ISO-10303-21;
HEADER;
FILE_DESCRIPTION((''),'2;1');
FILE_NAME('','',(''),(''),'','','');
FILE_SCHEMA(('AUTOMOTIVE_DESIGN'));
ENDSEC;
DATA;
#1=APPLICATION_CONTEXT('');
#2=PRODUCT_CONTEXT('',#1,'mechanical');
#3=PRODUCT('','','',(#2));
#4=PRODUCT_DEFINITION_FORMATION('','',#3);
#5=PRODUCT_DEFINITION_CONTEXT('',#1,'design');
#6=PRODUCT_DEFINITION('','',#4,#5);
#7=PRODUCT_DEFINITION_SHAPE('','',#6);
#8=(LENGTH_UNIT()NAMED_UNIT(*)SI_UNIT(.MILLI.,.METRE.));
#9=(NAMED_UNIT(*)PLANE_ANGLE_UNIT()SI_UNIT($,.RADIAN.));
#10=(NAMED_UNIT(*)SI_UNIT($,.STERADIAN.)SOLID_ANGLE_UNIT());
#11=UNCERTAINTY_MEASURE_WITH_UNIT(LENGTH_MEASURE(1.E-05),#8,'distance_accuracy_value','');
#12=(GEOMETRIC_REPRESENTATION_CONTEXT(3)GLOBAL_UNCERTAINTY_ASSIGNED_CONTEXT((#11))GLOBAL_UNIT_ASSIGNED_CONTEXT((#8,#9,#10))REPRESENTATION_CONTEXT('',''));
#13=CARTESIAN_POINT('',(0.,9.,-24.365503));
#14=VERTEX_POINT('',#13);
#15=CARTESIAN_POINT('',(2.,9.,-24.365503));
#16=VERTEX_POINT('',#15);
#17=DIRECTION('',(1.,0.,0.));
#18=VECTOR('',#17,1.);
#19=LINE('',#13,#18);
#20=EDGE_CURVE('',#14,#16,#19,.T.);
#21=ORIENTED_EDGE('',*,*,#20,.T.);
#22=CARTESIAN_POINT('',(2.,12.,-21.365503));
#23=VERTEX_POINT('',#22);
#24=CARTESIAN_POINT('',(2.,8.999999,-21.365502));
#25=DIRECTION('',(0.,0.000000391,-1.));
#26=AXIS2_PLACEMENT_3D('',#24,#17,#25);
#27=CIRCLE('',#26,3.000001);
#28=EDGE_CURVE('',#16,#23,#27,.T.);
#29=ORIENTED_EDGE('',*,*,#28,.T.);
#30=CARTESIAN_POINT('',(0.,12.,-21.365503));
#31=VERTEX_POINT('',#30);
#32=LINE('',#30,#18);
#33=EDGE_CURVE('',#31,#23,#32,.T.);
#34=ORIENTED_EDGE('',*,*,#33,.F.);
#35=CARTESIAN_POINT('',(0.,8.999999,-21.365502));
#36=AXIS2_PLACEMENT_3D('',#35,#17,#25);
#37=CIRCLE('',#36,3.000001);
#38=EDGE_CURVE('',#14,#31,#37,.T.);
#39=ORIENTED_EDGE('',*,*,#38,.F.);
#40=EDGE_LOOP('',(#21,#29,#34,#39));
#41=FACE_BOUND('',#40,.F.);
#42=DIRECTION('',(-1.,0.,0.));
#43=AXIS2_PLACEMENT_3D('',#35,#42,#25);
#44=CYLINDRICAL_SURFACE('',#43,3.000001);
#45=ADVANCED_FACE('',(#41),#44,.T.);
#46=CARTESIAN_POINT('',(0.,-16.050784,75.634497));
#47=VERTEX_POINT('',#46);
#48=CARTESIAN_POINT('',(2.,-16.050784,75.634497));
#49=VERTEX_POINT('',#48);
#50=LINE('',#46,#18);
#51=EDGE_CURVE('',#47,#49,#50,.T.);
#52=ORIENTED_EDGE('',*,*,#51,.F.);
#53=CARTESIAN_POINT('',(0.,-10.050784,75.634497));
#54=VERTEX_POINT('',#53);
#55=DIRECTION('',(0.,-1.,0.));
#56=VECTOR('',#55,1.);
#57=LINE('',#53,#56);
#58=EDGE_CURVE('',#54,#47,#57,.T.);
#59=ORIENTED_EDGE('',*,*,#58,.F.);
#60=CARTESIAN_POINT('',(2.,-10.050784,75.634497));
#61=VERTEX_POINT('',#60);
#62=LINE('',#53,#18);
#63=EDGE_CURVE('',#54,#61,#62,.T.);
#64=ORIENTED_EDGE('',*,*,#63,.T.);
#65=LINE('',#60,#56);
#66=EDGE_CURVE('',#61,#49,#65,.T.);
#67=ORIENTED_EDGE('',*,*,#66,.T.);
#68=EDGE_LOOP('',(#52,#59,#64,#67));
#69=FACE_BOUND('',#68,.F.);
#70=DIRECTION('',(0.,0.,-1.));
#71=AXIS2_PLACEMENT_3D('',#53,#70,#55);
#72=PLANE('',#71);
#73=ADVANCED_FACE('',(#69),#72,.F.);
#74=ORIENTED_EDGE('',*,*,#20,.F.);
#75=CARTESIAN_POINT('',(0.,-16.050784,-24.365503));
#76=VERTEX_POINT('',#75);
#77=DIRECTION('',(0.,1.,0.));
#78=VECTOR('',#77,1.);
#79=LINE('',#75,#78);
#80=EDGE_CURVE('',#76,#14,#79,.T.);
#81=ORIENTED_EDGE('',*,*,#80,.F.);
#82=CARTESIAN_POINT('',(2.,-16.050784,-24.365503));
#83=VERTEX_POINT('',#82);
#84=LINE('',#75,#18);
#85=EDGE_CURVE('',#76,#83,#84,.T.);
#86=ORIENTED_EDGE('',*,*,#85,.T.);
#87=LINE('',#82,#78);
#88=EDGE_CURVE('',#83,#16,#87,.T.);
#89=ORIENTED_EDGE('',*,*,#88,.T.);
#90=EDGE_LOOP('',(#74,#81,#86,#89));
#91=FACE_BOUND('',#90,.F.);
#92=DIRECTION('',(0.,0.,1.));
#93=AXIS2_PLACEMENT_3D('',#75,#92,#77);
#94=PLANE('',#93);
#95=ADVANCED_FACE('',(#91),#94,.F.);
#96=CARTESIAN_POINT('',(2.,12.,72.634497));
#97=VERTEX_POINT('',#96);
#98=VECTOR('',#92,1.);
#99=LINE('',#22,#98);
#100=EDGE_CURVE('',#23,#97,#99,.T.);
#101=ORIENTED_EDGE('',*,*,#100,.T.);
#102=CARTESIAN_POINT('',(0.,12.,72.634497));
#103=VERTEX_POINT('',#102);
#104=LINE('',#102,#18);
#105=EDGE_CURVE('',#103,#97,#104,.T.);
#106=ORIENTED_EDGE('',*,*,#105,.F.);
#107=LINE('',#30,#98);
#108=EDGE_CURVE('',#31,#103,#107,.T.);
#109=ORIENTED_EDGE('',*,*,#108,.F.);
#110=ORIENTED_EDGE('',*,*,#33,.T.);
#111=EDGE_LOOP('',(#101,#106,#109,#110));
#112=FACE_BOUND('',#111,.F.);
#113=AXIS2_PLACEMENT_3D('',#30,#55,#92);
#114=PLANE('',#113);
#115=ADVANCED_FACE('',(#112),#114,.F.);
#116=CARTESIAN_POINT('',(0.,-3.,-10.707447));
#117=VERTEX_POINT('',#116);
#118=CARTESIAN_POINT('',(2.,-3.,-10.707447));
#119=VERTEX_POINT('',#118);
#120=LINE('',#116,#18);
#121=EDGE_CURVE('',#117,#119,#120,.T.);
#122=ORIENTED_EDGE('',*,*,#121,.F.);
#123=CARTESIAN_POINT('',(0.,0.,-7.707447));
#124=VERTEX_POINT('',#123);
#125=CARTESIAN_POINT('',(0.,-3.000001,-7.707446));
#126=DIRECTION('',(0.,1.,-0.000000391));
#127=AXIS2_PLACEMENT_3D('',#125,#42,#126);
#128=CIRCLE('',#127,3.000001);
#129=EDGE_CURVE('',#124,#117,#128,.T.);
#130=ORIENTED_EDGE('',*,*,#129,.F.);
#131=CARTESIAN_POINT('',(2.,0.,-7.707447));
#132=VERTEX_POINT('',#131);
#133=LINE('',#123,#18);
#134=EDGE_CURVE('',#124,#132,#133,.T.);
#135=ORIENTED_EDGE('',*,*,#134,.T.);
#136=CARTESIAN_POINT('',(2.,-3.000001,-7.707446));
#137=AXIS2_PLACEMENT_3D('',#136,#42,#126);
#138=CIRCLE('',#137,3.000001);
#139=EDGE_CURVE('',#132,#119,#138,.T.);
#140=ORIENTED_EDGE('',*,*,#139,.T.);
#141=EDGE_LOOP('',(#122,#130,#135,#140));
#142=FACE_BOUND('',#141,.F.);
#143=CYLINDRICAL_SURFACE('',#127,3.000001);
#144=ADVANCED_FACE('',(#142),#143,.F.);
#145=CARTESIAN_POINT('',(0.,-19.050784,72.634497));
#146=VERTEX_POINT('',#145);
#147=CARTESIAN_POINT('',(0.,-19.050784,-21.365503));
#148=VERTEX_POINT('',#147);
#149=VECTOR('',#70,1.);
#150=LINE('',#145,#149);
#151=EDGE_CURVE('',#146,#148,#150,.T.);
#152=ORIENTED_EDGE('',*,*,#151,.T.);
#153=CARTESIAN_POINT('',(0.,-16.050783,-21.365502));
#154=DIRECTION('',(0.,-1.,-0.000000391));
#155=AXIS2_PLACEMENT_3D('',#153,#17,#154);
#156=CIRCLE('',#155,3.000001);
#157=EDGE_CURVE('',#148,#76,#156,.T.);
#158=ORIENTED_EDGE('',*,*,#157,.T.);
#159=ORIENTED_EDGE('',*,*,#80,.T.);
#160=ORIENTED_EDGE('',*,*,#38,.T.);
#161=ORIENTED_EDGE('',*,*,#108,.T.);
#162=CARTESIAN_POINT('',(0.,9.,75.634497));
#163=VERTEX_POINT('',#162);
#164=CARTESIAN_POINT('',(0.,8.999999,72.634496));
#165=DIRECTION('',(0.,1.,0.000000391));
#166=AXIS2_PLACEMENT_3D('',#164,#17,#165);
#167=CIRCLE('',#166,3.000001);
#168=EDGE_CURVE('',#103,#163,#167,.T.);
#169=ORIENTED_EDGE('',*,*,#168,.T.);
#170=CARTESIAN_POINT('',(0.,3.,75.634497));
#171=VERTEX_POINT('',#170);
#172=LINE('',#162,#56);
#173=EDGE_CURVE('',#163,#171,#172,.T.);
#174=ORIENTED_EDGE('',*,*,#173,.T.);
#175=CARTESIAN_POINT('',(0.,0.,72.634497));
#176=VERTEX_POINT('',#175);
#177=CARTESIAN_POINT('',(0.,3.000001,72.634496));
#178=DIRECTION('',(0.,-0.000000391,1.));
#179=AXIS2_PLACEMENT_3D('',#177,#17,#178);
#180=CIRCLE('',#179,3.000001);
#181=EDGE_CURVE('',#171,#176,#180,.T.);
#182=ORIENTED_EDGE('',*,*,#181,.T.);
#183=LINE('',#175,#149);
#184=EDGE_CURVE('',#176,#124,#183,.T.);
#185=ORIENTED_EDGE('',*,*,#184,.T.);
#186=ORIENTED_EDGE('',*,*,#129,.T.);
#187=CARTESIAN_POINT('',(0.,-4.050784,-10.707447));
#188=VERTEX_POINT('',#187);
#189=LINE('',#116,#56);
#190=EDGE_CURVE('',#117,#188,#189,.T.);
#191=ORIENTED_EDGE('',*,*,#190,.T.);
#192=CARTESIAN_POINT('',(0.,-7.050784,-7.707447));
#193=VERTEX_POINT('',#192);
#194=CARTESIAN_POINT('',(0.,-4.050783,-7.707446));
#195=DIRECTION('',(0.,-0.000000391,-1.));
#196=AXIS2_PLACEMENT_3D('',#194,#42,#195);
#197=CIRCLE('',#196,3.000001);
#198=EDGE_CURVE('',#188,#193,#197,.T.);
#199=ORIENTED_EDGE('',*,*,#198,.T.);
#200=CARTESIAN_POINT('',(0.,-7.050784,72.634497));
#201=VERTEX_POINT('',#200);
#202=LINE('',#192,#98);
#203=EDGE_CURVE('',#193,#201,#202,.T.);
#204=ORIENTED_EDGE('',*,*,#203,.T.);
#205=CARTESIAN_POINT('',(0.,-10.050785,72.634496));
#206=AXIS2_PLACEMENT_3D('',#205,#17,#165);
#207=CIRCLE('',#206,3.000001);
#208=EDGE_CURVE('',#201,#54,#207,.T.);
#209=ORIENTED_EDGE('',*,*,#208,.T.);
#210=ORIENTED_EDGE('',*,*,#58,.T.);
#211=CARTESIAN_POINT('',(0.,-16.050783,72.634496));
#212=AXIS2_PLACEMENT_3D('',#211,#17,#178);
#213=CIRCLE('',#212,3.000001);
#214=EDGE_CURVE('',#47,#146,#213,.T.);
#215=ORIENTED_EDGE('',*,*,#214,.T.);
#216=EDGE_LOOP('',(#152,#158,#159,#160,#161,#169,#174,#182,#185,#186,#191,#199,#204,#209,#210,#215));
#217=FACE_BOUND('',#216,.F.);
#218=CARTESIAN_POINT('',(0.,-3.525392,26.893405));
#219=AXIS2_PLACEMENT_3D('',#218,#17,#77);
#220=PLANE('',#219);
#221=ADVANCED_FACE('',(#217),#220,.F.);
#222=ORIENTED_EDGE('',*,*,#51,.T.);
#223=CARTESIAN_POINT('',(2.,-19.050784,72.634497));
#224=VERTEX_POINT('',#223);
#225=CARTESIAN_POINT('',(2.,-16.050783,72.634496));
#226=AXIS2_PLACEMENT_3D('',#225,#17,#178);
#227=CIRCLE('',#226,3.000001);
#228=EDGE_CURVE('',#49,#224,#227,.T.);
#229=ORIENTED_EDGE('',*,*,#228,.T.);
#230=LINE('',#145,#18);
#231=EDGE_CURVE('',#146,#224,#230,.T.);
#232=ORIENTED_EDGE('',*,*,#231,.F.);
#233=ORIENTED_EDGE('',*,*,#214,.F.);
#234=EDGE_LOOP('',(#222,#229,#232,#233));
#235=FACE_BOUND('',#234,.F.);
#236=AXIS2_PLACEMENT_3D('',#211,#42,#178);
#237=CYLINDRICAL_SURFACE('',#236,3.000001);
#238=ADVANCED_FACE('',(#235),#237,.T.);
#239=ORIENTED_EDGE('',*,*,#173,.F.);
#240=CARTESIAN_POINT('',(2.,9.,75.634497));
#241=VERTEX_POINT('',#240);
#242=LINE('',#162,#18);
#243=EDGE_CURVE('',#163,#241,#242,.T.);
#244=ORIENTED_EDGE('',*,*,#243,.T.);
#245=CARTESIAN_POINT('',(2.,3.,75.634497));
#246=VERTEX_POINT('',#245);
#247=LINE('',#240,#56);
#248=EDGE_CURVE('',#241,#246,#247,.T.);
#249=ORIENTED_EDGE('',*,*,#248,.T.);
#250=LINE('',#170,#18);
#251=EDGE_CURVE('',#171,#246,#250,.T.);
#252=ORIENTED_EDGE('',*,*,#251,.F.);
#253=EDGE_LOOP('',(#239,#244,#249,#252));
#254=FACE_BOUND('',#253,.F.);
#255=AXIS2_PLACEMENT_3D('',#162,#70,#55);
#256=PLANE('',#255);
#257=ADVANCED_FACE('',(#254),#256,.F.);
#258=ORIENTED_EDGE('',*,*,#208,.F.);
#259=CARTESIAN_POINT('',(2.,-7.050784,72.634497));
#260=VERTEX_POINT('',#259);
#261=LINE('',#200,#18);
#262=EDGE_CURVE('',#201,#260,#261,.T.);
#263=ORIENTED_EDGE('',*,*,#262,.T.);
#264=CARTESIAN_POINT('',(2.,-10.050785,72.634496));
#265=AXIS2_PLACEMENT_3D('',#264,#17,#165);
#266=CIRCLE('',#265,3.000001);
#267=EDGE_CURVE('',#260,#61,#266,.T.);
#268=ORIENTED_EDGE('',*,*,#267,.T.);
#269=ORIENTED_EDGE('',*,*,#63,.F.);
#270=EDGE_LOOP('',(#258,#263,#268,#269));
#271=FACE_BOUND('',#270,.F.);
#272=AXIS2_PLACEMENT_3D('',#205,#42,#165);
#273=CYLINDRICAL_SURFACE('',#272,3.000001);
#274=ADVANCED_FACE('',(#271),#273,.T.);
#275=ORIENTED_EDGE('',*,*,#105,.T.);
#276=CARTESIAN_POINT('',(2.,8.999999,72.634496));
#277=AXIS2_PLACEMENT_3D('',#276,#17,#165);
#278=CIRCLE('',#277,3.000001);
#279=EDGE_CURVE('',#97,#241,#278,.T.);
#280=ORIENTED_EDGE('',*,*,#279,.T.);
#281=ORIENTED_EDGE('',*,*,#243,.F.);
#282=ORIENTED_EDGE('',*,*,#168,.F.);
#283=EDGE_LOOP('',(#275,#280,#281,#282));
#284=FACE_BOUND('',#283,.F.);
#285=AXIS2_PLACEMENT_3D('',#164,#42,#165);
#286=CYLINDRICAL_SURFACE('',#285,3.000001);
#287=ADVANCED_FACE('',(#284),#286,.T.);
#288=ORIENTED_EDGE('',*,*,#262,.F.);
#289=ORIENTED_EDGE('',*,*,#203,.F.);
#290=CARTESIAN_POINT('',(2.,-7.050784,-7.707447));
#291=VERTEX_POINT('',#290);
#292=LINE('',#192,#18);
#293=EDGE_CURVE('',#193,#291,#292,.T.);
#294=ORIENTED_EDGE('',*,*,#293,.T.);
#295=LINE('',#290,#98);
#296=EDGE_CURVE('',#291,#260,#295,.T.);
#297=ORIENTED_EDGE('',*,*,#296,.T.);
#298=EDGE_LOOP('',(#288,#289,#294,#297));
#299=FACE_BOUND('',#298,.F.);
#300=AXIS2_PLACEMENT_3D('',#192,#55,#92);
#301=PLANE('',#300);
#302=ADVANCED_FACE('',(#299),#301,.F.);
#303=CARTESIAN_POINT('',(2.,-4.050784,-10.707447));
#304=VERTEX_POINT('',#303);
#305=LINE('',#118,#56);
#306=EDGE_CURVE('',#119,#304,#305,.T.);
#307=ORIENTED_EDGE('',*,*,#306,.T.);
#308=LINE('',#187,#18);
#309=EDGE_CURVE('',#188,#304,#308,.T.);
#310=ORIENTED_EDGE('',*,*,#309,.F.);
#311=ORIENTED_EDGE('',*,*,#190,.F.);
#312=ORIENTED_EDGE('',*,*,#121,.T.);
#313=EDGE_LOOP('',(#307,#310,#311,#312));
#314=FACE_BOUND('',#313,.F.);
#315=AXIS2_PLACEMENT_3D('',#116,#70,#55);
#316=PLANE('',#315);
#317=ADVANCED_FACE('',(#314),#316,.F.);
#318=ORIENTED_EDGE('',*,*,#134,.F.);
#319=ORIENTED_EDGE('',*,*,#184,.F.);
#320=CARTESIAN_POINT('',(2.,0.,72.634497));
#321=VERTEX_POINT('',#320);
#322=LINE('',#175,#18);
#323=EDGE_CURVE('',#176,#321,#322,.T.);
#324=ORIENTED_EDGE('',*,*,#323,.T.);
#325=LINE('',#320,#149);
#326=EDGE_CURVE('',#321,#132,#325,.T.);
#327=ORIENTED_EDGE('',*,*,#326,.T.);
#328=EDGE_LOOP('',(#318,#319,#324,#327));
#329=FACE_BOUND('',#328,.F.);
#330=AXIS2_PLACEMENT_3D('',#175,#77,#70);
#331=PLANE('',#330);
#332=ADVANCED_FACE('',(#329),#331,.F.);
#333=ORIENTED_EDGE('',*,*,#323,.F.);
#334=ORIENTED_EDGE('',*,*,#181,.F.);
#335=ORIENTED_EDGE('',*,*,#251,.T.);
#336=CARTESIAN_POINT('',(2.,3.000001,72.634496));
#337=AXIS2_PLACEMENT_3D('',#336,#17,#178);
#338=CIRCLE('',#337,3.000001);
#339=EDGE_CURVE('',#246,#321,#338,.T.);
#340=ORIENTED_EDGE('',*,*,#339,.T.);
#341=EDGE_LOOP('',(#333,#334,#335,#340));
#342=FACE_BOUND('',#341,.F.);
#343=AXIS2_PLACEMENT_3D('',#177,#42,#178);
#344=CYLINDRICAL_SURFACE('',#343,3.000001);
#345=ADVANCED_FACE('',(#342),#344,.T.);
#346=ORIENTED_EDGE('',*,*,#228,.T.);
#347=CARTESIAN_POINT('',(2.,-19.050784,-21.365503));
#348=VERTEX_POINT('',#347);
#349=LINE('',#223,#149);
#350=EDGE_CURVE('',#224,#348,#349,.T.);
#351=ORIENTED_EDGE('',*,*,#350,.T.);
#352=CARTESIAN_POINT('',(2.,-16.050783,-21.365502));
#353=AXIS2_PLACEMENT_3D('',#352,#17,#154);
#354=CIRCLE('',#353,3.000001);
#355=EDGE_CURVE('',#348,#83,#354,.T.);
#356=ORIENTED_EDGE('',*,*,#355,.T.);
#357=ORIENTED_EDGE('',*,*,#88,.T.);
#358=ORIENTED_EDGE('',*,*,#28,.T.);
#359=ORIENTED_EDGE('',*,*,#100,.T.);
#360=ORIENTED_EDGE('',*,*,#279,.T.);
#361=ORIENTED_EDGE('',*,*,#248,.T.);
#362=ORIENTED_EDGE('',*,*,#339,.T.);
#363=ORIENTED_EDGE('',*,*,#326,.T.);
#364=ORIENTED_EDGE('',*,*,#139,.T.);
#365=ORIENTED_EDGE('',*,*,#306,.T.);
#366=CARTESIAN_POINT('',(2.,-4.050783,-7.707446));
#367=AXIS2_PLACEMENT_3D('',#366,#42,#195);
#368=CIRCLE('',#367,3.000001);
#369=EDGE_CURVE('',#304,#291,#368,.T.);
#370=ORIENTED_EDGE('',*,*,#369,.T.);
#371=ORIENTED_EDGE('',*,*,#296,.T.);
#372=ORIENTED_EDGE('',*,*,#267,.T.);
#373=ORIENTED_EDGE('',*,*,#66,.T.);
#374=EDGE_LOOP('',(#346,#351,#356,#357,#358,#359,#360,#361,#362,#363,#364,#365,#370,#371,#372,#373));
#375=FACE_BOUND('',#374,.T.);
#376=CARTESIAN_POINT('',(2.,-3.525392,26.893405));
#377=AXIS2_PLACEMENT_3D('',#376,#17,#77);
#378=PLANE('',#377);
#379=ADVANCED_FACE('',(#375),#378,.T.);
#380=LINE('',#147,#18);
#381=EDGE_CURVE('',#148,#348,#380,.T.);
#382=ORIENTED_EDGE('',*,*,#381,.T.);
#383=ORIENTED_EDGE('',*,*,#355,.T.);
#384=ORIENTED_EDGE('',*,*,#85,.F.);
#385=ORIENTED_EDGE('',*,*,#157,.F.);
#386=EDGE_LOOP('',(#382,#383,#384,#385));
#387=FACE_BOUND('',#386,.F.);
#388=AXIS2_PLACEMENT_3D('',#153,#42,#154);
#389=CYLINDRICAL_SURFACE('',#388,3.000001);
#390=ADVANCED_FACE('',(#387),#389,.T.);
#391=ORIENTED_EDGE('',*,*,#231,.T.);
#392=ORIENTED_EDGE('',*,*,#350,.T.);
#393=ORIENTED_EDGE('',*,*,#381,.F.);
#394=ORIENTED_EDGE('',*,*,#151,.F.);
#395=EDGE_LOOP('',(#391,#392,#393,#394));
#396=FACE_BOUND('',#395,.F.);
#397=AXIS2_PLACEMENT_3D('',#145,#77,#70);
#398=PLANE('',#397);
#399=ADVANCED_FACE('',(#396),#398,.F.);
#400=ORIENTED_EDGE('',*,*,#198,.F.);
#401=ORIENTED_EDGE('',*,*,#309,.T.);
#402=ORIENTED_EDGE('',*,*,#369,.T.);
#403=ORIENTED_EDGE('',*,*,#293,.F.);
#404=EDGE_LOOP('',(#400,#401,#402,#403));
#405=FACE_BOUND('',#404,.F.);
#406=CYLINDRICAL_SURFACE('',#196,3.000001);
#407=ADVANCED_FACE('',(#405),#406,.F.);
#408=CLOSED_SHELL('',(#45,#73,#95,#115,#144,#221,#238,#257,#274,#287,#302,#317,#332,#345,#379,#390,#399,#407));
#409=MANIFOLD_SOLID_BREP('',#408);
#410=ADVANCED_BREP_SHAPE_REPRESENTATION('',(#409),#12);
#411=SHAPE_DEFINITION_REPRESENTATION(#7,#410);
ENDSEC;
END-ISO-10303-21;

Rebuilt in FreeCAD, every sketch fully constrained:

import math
import FreeCAD as App
import Part
import Sketcher
from FreeCAD import Vector
Q = App.Units.Quantity

doc = App.newDocument("Part")
params = doc.addObject("Spreadsheet::Sheet", "Params")
for row, (alias, value) in enumerate([
    ("sketch1_radius", "3.000001 mm"),
    ("sketch1_width", "6 mm"),
    ("sketch1_height", "94 mm"),
    ("pad1_length", "2 mm"),
], start=1):
    params.set(f"A{row}", alias)
    params.set(f"B{row}", "=" + value)
    params.setAlias(f"B{row}", alias)

body = doc.addObject("PartDesign::Body", "Body")

# Sketch on YZ plane
sketch1 = doc.addObject("Sketcher::SketchObject", "Sketch")
body.addObject(sketch1)
sketch1.AttachmentSupport = (doc.YZ_Plane, [""])
sketch1.MapMode = "FlatFace"
sketch1.addGeometry(Part.ArcOfCircle(Part.Circle(Vector(-16.1, 72.6, 0), Vector(0, 0, 1), 3), math.radians(90), math.radians(180)), False)
sketch1.addGeometry(Part.LineSegment(Vector(-19.1, 72.6, 0), Vector(-19.1, -21.4, 0)), False)
sketch1.addGeometry(Part.ArcOfCircle(Part.Circle(Vector(-16.1, -21.4, 0), Vector(0, 0, 1), 3), math.radians(-180), math.radians(-90)), False)
sketch1.addGeometry(Part.LineSegment(Vector(-16.1, -24.4, 0), Vector(9, -24.4, 0)), False)
sketch1.addGeometry(Part.ArcOfCircle(Part.Circle(Vector(9, -21.4, 0), Vector(0, 0, 1), 3), math.radians(-90), math.radians(0)), False)
sketch1.addGeometry(Part.LineSegment(Vector(12, -21.4, 0), Vector(12, 72.6, 0)), False)
sketch1.addGeometry(Part.ArcOfCircle(Part.Circle(Vector(9, 72.6, 0), Vector(0, 0, 1), 3), math.radians(0), math.radians(90)), False)
sketch1.addGeometry(Part.LineSegment(Vector(9, 75.6, 0), Vector(3, 75.6, 0)), False)
sketch1.addGeometry(Part.ArcOfCircle(Part.Circle(Vector(3, 72.6, 0), Vector(0, 0, 1), 3), math.radians(90), math.radians(180)), False)
sketch1.addGeometry(Part.LineSegment(Vector(0, 72.6, 0), Vector(0, -7.7, 0)), False)
sketch1.addGeometry(Part.ArcOfCircle(Part.Circle(Vector(-3, -7.7, 0), Vector(0, 0, 1), 3), math.radians(-90), math.radians(0)), False)
sketch1.addGeometry(Part.LineSegment(Vector(-3, -10.7, 0), Vector(-4.1, -10.7, 0)), False)
sketch1.addGeometry(Part.ArcOfCircle(Part.Circle(Vector(-4.1, -7.7, 0), Vector(0, 0, 1), 3), math.radians(-180), math.radians(-90)), False)
sketch1.addGeometry(Part.LineSegment(Vector(-7.1, -7.7, 0), Vector(-7.1, 72.6, 0)), False)
sketch1.addGeometry(Part.ArcOfCircle(Part.Circle(Vector(-10.1, 72.6, 0), Vector(0, 0, 1), 3), math.radians(0), math.radians(90)), False)
sketch1.addGeometry(Part.LineSegment(Vector(-10.1, 75.6, 0), Vector(-16.1, 75.6, 0)), False)
sketch1.addConstraint(Sketcher.Constraint("Tangent", 0, 2, 1, 1))
sketch1.addConstraint(Sketcher.Constraint("Tangent", 1, 2, 2, 1))
sketch1.addConstraint(Sketcher.Constraint("Tangent", 2, 2, 3, 1))
sketch1.addConstraint(Sketcher.Constraint("Tangent", 3, 2, 4, 1))
sketch1.addConstraint(Sketcher.Constraint("Tangent", 4, 2, 5, 1))
sketch1.addConstraint(Sketcher.Constraint("Tangent", 5, 2, 6, 1))
sketch1.addConstraint(Sketcher.Constraint("Tangent", 6, 2, 7, 1))
sketch1.addConstraint(Sketcher.Constraint("Tangent", 7, 2, 8, 1))
sketch1.addConstraint(Sketcher.Constraint("Tangent", 8, 2, 9, 1))
sketch1.addConstraint(Sketcher.Constraint("Tangent", 9, 2, 10, 2))
sketch1.addConstraint(Sketcher.Constraint("Tangent", 10, 1, 11, 1))
sketch1.addConstraint(Sketcher.Constraint("Tangent", 11, 2, 12, 2))
sketch1.addConstraint(Sketcher.Constraint("Tangent", 12, 1, 13, 1))
sketch1.addConstraint(Sketcher.Constraint("Tangent", 13, 2, 14, 1))
sketch1.addConstraint(Sketcher.Constraint("Tangent", 14, 2, 15, 1))
sketch1.addConstraint(Sketcher.Constraint("Tangent", 15, 2, 0, 1))
sketch1.addConstraint(Sketcher.Constraint("Vertical", 1))
sketch1.addConstraint(Sketcher.Constraint("Horizontal", 3))
sketch1.addConstraint(Sketcher.Constraint("Vertical", 5))
sketch1.addConstraint(Sketcher.Constraint("Horizontal", 7))
sketch1.addConstraint(Sketcher.Constraint("Vertical", 9))
sketch1.addConstraint(Sketcher.Constraint("Horizontal", 11))
sketch1.addConstraint(Sketcher.Constraint("Vertical", 13))
sketch1.addConstraint(Sketcher.Constraint("Horizontal", 15))
sketch1.addConstraint(Sketcher.Constraint("Equal", 0, 2))
sketch1.addConstraint(Sketcher.Constraint("Equal", 2, 4))
sketch1.addConstraint(Sketcher.Constraint("Equal", 4, 6))
sketch1.addConstraint(Sketcher.Constraint("Equal", 6, 8))
sketch1.addConstraint(Sketcher.Constraint("Equal", 8, 10))
sketch1.addConstraint(Sketcher.Constraint("Equal", 10, 12))
sketch1.addConstraint(Sketcher.Constraint("Equal", 12, 14))
sketch1.addConstraint(Sketcher.Constraint("PointOnObject", 8, 2, -2))
sketch1.addConstraint(Sketcher.Constraint("Horizontal", 0, 3, 6, 3))
sketch1.addConstraint(Sketcher.Constraint("Equal", 7, 15))
sketch1.addConstraint(Sketcher.Constraint("Radius", 0, Q("3.000001 mm")))
sketch1.addConstraint(Sketcher.Constraint("DistanceX", 7, 2, 7, 1, Q("6 mm")))
sketch1.addConstraint(Sketcher.Constraint("DistanceY", 1, 2, 1, 1, Q("94 mm")))
sketch1.addConstraint(Sketcher.Constraint("DistanceY", 2, 3, -1, 1, Q("21.365502 mm")))
sketch1.addConstraint(Sketcher.Constraint("DistanceX", 3, 1, 3, 2, Q("25.050784 mm")))
sketch1.addConstraint(Sketcher.Constraint("DistanceY", 9, 2, 9, 1, Q("80.341944 mm")))
sketch1.setExpression("Constraints[34]", "Params.sketch1_radius")
sketch1.setExpression("Constraints[35]", "Params.sketch1_width")
sketch1.setExpression("Constraints[36]", "Params.sketch1_height")
pad1 = doc.addObject("PartDesign::Pad", "Pad")
body.addObject(pad1)
pad1.Profile = sketch1
pad1.setExpression("Length", "Params.pad1_length")

doc.recompute()
